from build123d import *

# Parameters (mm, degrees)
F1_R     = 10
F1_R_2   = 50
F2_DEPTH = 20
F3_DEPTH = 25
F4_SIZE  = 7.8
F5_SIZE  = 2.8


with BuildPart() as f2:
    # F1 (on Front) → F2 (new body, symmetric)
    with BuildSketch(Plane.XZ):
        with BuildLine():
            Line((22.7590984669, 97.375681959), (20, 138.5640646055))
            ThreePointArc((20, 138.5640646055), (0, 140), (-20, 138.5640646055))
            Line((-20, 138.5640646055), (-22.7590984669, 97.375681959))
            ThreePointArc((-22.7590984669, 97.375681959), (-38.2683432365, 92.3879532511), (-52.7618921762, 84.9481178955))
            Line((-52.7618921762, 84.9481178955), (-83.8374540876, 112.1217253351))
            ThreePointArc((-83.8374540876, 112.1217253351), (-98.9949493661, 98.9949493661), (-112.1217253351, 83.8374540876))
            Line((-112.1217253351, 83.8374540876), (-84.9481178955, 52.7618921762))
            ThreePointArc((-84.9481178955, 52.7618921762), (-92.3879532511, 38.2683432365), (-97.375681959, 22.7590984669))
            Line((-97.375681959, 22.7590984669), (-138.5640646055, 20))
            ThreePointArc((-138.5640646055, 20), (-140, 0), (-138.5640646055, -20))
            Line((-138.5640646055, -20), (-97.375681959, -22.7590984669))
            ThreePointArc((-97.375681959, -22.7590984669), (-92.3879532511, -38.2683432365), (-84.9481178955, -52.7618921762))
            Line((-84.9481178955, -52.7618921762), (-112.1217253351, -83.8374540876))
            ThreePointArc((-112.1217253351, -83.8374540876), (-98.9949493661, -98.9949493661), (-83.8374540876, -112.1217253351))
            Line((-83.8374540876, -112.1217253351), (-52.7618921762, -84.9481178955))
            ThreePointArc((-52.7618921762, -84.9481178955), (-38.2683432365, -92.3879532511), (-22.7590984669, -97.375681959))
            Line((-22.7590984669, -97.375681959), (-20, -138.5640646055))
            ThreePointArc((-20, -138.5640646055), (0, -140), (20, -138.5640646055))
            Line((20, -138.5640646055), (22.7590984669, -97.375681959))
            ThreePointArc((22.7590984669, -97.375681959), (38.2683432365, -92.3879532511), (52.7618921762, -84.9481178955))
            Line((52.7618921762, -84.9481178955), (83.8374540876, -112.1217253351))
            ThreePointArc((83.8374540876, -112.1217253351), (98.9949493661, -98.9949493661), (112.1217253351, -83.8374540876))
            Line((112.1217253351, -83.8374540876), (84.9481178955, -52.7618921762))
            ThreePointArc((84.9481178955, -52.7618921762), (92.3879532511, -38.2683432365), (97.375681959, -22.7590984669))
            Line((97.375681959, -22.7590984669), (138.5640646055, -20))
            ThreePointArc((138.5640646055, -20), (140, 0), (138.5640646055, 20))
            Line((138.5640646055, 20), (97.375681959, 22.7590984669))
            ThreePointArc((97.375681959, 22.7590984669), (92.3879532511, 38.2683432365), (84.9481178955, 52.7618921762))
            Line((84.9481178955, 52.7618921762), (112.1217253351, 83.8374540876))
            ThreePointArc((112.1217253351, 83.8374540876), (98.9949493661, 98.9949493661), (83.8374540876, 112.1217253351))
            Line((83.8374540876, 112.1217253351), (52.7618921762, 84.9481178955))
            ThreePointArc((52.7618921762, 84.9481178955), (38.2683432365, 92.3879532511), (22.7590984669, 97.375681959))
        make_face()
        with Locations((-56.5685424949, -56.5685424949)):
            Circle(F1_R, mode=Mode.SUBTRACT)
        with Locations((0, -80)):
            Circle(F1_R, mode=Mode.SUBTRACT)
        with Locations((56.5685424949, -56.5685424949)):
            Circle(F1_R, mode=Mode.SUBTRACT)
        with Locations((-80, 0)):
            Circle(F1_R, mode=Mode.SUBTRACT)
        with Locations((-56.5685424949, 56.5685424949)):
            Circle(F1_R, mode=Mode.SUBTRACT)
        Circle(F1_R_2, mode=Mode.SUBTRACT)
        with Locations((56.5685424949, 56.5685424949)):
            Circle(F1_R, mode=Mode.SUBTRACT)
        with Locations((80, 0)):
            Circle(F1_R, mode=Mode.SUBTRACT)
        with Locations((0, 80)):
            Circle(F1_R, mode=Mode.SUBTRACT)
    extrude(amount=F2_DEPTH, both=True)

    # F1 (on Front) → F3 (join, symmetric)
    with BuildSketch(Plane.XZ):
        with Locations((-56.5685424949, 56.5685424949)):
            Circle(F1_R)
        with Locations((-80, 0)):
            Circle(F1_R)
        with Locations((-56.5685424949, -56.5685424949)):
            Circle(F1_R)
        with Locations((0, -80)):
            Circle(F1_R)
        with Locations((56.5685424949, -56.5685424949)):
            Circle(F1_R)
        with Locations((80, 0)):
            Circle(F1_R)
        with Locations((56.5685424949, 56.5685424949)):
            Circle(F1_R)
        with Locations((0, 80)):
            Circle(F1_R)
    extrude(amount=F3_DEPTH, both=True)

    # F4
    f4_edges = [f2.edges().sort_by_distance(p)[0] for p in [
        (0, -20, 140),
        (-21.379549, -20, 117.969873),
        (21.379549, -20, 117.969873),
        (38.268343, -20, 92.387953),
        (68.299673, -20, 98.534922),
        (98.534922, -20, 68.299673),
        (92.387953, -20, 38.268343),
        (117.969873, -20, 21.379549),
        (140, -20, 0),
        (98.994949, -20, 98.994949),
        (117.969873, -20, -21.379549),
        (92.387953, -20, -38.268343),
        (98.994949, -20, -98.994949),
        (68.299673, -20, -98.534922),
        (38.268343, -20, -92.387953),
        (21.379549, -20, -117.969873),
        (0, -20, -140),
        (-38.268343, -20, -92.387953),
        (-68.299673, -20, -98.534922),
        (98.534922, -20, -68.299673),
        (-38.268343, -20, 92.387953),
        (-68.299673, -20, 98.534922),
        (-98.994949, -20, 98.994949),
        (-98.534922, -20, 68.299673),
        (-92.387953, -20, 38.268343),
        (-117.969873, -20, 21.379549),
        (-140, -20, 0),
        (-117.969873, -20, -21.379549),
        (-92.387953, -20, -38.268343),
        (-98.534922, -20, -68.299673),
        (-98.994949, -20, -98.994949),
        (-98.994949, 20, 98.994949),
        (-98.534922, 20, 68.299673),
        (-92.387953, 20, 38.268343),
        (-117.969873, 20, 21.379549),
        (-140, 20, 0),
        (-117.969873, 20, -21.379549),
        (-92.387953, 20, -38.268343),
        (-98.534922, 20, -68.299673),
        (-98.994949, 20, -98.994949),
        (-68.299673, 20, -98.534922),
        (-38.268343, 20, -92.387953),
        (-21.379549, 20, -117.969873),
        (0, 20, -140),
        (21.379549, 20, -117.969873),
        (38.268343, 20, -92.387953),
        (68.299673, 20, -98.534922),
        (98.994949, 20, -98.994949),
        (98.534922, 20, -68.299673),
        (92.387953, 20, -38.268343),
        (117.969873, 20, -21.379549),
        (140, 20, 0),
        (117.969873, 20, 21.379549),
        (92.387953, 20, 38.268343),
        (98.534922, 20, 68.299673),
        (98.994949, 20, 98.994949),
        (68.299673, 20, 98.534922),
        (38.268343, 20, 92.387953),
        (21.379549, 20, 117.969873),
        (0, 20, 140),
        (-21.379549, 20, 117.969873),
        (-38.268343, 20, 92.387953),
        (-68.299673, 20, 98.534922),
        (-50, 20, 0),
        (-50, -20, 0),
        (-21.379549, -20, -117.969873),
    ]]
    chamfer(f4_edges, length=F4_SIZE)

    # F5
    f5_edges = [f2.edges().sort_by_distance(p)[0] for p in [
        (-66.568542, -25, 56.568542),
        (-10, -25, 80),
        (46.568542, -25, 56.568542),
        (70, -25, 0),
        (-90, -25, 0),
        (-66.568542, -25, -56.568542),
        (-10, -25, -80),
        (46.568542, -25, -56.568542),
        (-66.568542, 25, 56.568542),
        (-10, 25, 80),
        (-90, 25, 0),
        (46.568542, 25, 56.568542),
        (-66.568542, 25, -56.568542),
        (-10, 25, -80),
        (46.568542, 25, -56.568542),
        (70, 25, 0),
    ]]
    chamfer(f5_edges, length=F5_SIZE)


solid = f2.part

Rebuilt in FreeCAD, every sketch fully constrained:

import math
import FreeCAD as App
import Part
import Sketcher
Q = App.Units.Quantity


def edges_at(feature, points):
    """Names of the edges that pass closest to the given points."""
    edges = feature.Shape.Edges
    near = lambda p: min(range(len(edges)), key=lambda i: edges[i].distToShape(Part.Vertex(*p))[0])
    return sorted({f"Edge{near(p) + 1}" for p in points})

doc = App.newDocument("Part")
body = doc.addObject("PartDesign::Body", "Body")

sketch1 = doc.addObject("Sketcher::SketchObject", "Sketch")
body.addObject(sketch1)
sketch1.AttachmentSupport = (doc.XZ_Plane, [""])
sketch1.MapMode = "FlatFace"
sketch1.addGeometry(Part.LineSegment(App.Vector(23, 97, 0), App.Vector(20, 139, 0)), False)
sketch1.addGeometry(Part.ArcOfCircle(Part.Circle(App.Vector(0, 0, 0), App.Vector(0, 0, 1), 140), math.radians(81.79), math.radians(98.21)), False)
sketch1.addGeometry(Part.LineSegment(App.Vector(-20, 139, 0), App.Vector(-23, 97, 0)), False)
sketch1.addGeometry(Part.ArcOfCircle(Part.Circle(App.Vector(0, 0, 0), App.Vector(0, 0, 1), 100), math.radians(103.16), math.radians(121.84)), False)
sketch1.addGeometry(Part.LineSegment(App.Vector(-53, 85, 0), App.Vector(-84, 112, 0)), False)
sketch1.addGeometry(Part.ArcOfCircle(Part.Circle(App.Vector(0, 0, 0), App.Vector(0, 0, 1), 140), math.radians(126.79), math.radians(143.21)), False)
sketch1.addGeometry(Part.LineSegment(App.Vector(-112, 84, 0), App.Vector(-85, 53, 0)), False)
sketch1.addGeometry(Part.ArcOfCircle(Part.Circle(App.Vector(0, 0, 0), App.Vector(0, 0, 1), 100), math.radians(148.16), math.radians(166.84)), False)
sketch1.addGeometry(Part.LineSegment(App.Vector(-97, 23, 0), App.Vector(-139, 20, 0)), False)
sketch1.addGeometry(Part.ArcOfCircle(Part.Circle(App.Vector(0, 0, 0), App.Vector(0, 0, 1), 140), math.radians(171.79), math.radians(188.21)), False)
sketch1.addGeometry(Part.LineSegment(App.Vector(-139, -20, 0), App.Vector(-97, -23, 0)), False)
sketch1.addGeometry(Part.ArcOfCircle(Part.Circle(App.Vector(0, 0, 0), App.Vector(0, 0, 1), 100), math.radians(-166.84), math.radians(-148.16)), False)
sketch1.addGeometry(Part.LineSegment(App.Vector(-85, -53, 0), App.Vector(-112, -84, 0)), False)
sketch1.addGeometry(Part.ArcOfCircle(Part.Circle(App.Vector(0, 0, 0), App.Vector(0, 0, 1), 140), math.radians(-143.21), math.radians(-126.79)), False)
sketch1.addGeometry(Part.LineSegment(App.Vector(-84, -112, 0), App.Vector(-53, -85, 0)), False)
sketch1.addGeometry(Part.ArcOfCircle(Part.Circle(App.Vector(0, 0, 0), App.Vector(0, 0, 1), 100), math.radians(-121.84), math.radians(-103.16)), False)
sketch1.addGeometry(Part.LineSegment(App.Vector(-23, -97, 0), App.Vector(-20, -139, 0)), False)
sketch1.addGeometry(Part.ArcOfCircle(Part.Circle(App.Vector(0, 0, 0), App.Vector(0, 0, 1), 140), math.radians(-98.21), math.radians(-81.79)), False)
sketch1.addGeometry(Part.LineSegment(App.Vector(20, -139, 0), App.Vector(23, -97, 0)), False)
sketch1.addGeometry(Part.ArcOfCircle(Part.Circle(App.Vector(0, 0, 0), App.Vector(0, 0, 1), 100), math.radians(-76.84), math.radians(-58.16)), False)
sketch1.addGeometry(Part.LineSegment(App.Vector(53, -85, 0), App.Vector(84, -112, 0)), False)
sketch1.addGeometry(Part.ArcOfCircle(Part.Circle(App.Vector(0, 0, 0), App.Vector(0, 0, 1), 140), math.radians(-53.21), math.radians(-36.79)), False)
sketch1.addGeometry(Part.LineSegment(App.Vector(112, -84, 0), App.Vector(85, -53, 0)), False)
sketch1.addGeometry(Part.ArcOfCircle(Part.Circle(App.Vector(0, 0, 0), App.Vector(0, 0, 1), 100), math.radians(-31.84), math.radians(-13.16)), False)
sketch1.addGeometry(Part.LineSegment(App.Vector(97, -23, 0), App.Vector(139, -20, 0)), False)
sketch1.addGeometry(Part.ArcOfCircle(Part.Circle(App.Vector(0, 0, 0), App.Vector(0, 0, 1), 140), math.radians(-8.21), math.radians(8.21)), False)
sketch1.addGeometry(Part.LineSegment(App.Vector(139, 20, 0), App.Vector(97, 23, 0)), False)
sketch1.addGeometry(Part.ArcOfCircle(Part.Circle(App.Vector(0, 0, 0), App.Vector(0, 0, 1), 100), math.radians(13.16), math.radians(31.84)), False)
sketch1.addGeometry(Part.LineSegment(App.Vector(85, 53, 0), App.Vector(112, 84, 0)), False)
sketch1.addGeometry(Part.ArcOfCircle(Part.Circle(App.Vector(0, 0, 0), App.Vector(0, 0, 1), 140), math.radians(36.79), math.radians(53.21)), False)
sketch1.addGeometry(Part.LineSegment(App.Vector(84, 112, 0), App.Vector(53, 85, 0)), False)
sketch1.addGeometry(Part.ArcOfCircle(Part.Circle(App.Vector(0, 0, 0), App.Vector(0, 0, 1), 100), math.radians(58.16), math.radians(76.84)), False)
sketch1.addGeometry(Part.Circle(App.Vector(-57, -57, 0), App.Vector(0, 0, 1), 10), False)
sketch1.addGeometry(Part.Circle(App.Vector(0, -80, 0), App.Vector(0, 0, 1), 10), False)
sketch1.addGeometry(Part.Circle(App.Vector(57, -57, 0), App.Vector(0, 0, 1), 10), False)
sketch1.addGeometry(Part.Circle(App.Vector(-80, 0, 0), App.Vector(0, 0, 1), 10), False)
sketch1.addGeometry(Part.Circle(App.Vector(-57, 57, 0), App.Vector(0, 0, 1), 10), False)
sketch1.addGeometry(Part.Circle(App.Vector(0, 0, 0), App.Vector(0, 0, 1), 50), False)
sketch1.addGeometry(Part.Circle(App.Vector(80, 0, 0), App.Vector(0, 0, 1), 10), False)
sketch1.addGeometry(Part.Circle(App.Vector(0, 80, 0), App.Vector(0, 0, 1), 10), False)
sketch1.addGeometry(Part.Circle(App.Vector(57, 57, 0), App.Vector(0, 0, 1), 10), False)
sketch1.addConstraint(Sketcher.Constraint("Coincident", 0, 2, 1, 1))
sketch1.addConstraint(Sketcher.Constraint("Coincident", 1, 2, 2, 1))
sketch1.addConstraint(Sketcher.Constraint("Coincident", 2, 2, 3, 1))
sketch1.addConstraint(Sketcher.Constraint("Coincident", 3, 2, 4, 1))
sketch1.addConstraint(Sketcher.Constraint("Coincident", 4, 2, 5, 1))
sketch1.addConstraint(Sketcher.Constraint("Coincident", 5, 2, 6, 1))
sketch1.addConstraint(Sketcher.Constraint("Coincident", 6, 2, 7, 1))
sketch1.addConstraint(Sketcher.Constraint("Coincident", 7, 2, 8, 1))
sketch1.addConstraint(Sketcher.Constraint("Coincident", 8, 2, 9, 1))
sketch1.addConstraint(Sketcher.Constraint("Coincident", 9, 2, 10, 1))
sketch1.addConstraint(Sketcher.Constraint("Coincident", 10, 2, 11, 1))
sketch1.addConstraint(Sketcher.Constraint("Coincident", 11, 2, 12, 1))
sketch1.addConstraint(Sketcher.Constraint("Coincident", 12, 2, 13, 1))
sketch1.addConstraint(Sketcher.Constraint("Coincident", 13, 2, 14, 1))
sketch1.addConstraint(Sketcher.Constraint("Coincident", 14, 2, 15, 1))
sketch1.addConstraint(Sketcher.Constraint("Coincident", 15, 2, 16, 1))
sketch1.addConstraint(Sketcher.Constraint("Coincident", 16, 2, 17, 1))
sketch1.addConstraint(Sketcher.Constraint("Coincident", 17, 2, 18, 1))
sketch1.addConstraint(Sketcher.Constraint("Coincident", 18, 2, 19, 1))
sketch1.addConstraint(Sketcher.Constraint("Coincident", 19, 2, 20, 1))
sketch1.addConstraint(Sketcher.Constraint("Coincident", 20, 2, 21, 1))
sketch1.addConstraint(Sketcher.Constraint("Coincident", 21, 2, 22, 1))
sketch1.addConstraint(Sketcher.Constraint("Coincident", 22, 2, 23, 1))
sketch1.addConstraint(Sketcher.Constraint("Coincident", 23, 2, 24, 1))
sketch1.addConstraint(Sketcher.Constraint("Coincident", 24, 2, 25, 1))
sketch1.addConstraint(Sketcher.Constraint("Coincident", 25, 2, 26, 1))
sketch1.addConstraint(Sketcher.Constraint("Coincident", 26, 2, 27, 1))
sketch1.addConstraint(Sketcher.Constraint("Coincident", 27, 2, 28, 1))
sketch1.addConstraint(Sketcher.Constraint("Coincident", 28, 2, 29, 1))
sketch1.addConstraint(Sketcher.Constraint("Coincident", 29, 2, 30, 1))
sketch1.addConstraint(Sketcher.Constraint("Coincident", 30, 2, 31, 1))
sketch1.addConstraint(Sketcher.Constraint("Coincident", 31, 2, 0, 1))
sketch1.addConstraint(Sketcher.Constraint("Coincident", 1, 3, -1, 1))
sketch1.addConstraint(Sketcher.Constraint("Coincident", 3, 3, -1, 1))
sketch1.addConstraint(Sketcher.Constraint("Coincident", 5, 3, -1, 1))
sketch1.addConstraint(Sketcher.Constraint("Coincident", 7, 3, -1, 1))
sketch1.addConstraint(Sketcher.Constraint("Coincident", 9, 3, -1, 1))
sketch1.addConstraint(Sketcher.Constraint("Coincident", 11, 3, -1, 1))
sketch1.addConstraint(Sketcher.Constraint("Coincident", 13, 3, -1, 1))
sketch1.addConstraint(Sketcher.Constraint("Coincident", 15, 3, -1, 1))
sketch1.addConstraint(Sketcher.Constraint("Coincident", 17, 3, -1, 1))
sketch1.addConstraint(Sketcher.Constraint("Coincident", 19, 3, -1, 1))
sketch1.addConstraint(Sketcher.Constraint("Coincident", 21, 3, -1, 1))
sketch1.addConstraint(Sketcher.Constraint("Coincident", 23, 3, -1, 1))
sketch1.addConstraint(Sketcher.Constraint("Coincident", 25, 3, -1, 1))
sketch1.addConstraint(Sketcher.Constraint("Coincident", 27, 3, -1, 1))
sketch1.addConstraint(Sketcher.Constraint("Coincident", 29, 3, -1, 1))
sketch1.addConstraint(Sketcher.Constraint("Coincident", 31, 3, -1, 1))
sketch1.addConstraint(Sketcher.Constraint("Coincident", 37, 3, -1, 1))
sketch1.addConstraint(Sketcher.Constraint("Equal", 1, 5))
sketch1.addConstraint(Sketcher.Constraint("Equal", 3, 7))
sketch1.addConstraint(Sketcher.Constraint("Equal", 5, 9))
sketch1.addConstraint(Sketcher.Constraint("Equal", 7, 11))
sketch1.addConstraint(Sketcher.Constraint("Equal", 9, 13))
sketch1.addConstraint(Sketcher.Constraint("Equal", 11, 15))
sketch1.addConstraint(Sketcher.Constraint("Equal", 13, 17))
sketch1.addConstraint(Sketcher.Constraint("Equal", 15, 19))
sketch1.addConstraint(Sketcher.Constraint("Equal", 17, 21))
sketch1.addConstraint(Sketcher.Constraint("Equal", 19, 23))
sketch1.addConstraint(Sketcher.Constraint("Equal", 21, 25))
sketch1.addConstraint(Sketcher.Constraint("Equal", 23, 27))
sketch1.addConstraint(Sketcher.Constraint("Equal", 25, 29))
sketch1.addConstraint(Sketcher.Constraint("Equal", 27, 31))
sketch1.addConstraint(Sketcher.Constraint("Equal", 32, 33))
sketch1.addConstraint(Sketcher.Constraint("Equal", 33, 34))
sketch1.addConstraint(Sketcher.Constraint("Equal", 34, 35))
sketch1.addConstraint(Sketcher.Constraint("Equal", 35, 36))
sketch1.addConstraint(Sketcher.Constraint("Equal", 36, 38))
sketch1.addConstraint(Sketcher.Constraint("Equal", 38, 39))
sketch1.addConstraint(Sketcher.Constraint("Equal", 39, 40))
sketch1.addConstraint(Sketcher.Constraint("Symmetric", 34, 3, 36, 3, -1, 1))
sketch1.addConstraint(Sketcher.Constraint("Symmetric", 35, 3, 38, 3, -1, 1))
sketch1.addConstraint(Sketcher.Constraint("Symmetric", 33, 3, 39, 3, -1, 1))
sketch1.addConstraint(Sketcher.Constraint("Symmetric", 32, 3, 40, 3, -1, 1))
sketch1.addConstraint(Sketcher.Constraint("Symmetric", 32, 3, 34, 3, -2))
sketch1.addConstraint(Sketcher.Constraint("PointOnObject", 33, 3, -2))
sketch1.addConstraint(Sketcher.Constraint("PointOnObject", 35, 3, -1))
sketch1.addConstraint(Sketcher.Constraint("Perpendicular", 0, 8))
sketch1.addConstraint(Sketcher.Constraint("Perpendicular", 2, 10))
sketch1.addConstraint(Sketcher.Constraint("Perpendicular", 4, 12))
sketch1.addConstraint(Sketcher.Constraint("Perpendicular", 6, 14))
sketch1.addConstraint(Sketcher.Constraint("Perpendicular", 8, 16))
sketch1.addConstraint(Sketcher.Constraint("Perpendicular", 10, 18))
sketch1.addConstraint(Sketcher.Constraint("Perpendicular", 12, 20))
sketch1.addConstraint(Sketcher.Constraint("Perpendicular", 14, 22))
sketch1.addConstraint(Sketcher.Constraint("Perpendicular", 16, 24))
sketch1.addConstraint(Sketcher.Constraint("Perpendicular", 18, 26))
sketch1.addConstraint(Sketcher.Constraint("Perpendicular", 20, 28))
sketch1.addConstraint(Sketcher.Constraint("Perpendicular", 22, 30))
sketch1.addConstraint(Sketcher.Constraint("Horizontal", 0, 2, 1, 2))
sketch1.addConstraint(Sketcher.Constraint("Horizontal", 16, 2, 17, 2))
sketch1.addConstraint(Sketcher.Constraint("Horizontal", 15, 2, 18, 2))
sketch1.addConstraint(Sketcher.Constraint("Horizontal", 14, 2, 19, 2))
sketch1.addConstraint(Sketcher.Constraint("Horizontal", 13, 2, 20, 2))
sketch1.addConstraint(Sketcher.Constraint("Horizontal", 12, 2, 21, 2))
sketch1.addConstraint(Sketcher.Constraint("Horizontal", 10, 2, 23, 2))
sketch1.addConstraint(Sketcher.Constraint("Horizontal", 8, 2, 25, 2))
sketch1.addConstraint(Sketcher.Constraint("Horizontal", 6, 2, 27, 2))
sketch1.addConstraint(Sketcher.Constraint("Horizontal", 4, 2, 29, 2))
sketch1.addConstraint(Sketcher.Constraint("Vertical", 8, 2, 9, 2))
sketch1.addConstraint(Sketcher.Constraint("Vertical", 6, 2, 11, 2))
sketch1.addConstraint(Sketcher.Constraint("Vertical", 4, 2, 13, 2))
sketch1.addConstraint(Sketcher.Constraint("Vertical", 2, 2, 15, 2))
sketch1.addConstraint(Sketcher.Constraint("Equal", 2, 4))
sketch1.addConstraint(Sketcher.Constraint("Equal", 4, 6))
sketch1.addConstraint(Sketcher.Constraint("Equal", 6, 8))
sketch1.addConstraint(Sketcher.Constraint("Diameter", 32, Q("20 mm")))
sketch1.addConstraint(Sketcher.Constraint("Diameter", 37, Q("100 mm")))
sketch1.addConstraint(Sketcher.Constraint("Radius", 1, Q("140 mm")))
sketch1.addConstraint(Sketcher.Constraint("Radius", 3, Q("100 mm")))
sketch1.addConstraint(Sketcher.Constraint("DistanceY", 33, 3, -1, 1, Q("80 mm")))
sketch1.addConstraint(Sketcher.Constraint("DistanceX", 35, 3, -1, 1, Q("80 mm")))
sketch1.addConstraint(Sketcher.Constraint("DistanceX", -1, 1, 0, 2, Q("20 mm")))
sketch1.addConstraint(Sketcher.Constraint("DistanceX", 2, 2, -1, 1, Q("22.759098 mm")))
sketch1.addConstraint(Sketcher.Constraint("DistanceY", 36, 3, 2, 2, Q("40.807139 mm")))
sketch1.addConstraint(Sketcher.Constraint("DistanceX", 2, 2, 40, 3, Q("79.327641 mm")))
sketch1.addConstraint(Sketcher.Constraint("DistanceX", 36, 3, 3, 2, Q("3.80665 mm")))
pad1 = doc.addObject("PartDesign::Pad", "Pad")
body.addObject(pad1)
pad1.Profile = sketch1
pad1.Length = 40
pad1.Midplane = True

sketch2 = doc.addObject("Sketcher::SketchObject", "Sketch001")
body.addObject(sketch2)
sketch2.AttachmentSupport = (doc.XZ_Plane, [""])
sketch2.MapMode = "FlatFace"
sketch2.addGeometry(Part.Circle(App.Vector(-57, 57, 0), App.Vector(0, 0, 1), 10), False)
sketch2.addGeometry(Part.Circle(App.Vector(-80, 0, 0), App.Vector(0, 0, 1), 10), False)
sketch2.addGeometry(Part.Circle(App.Vector(-57, -57, 0), App.Vector(0, 0, 1), 10), False)
sketch2.addGeometry(Part.Circle(App.Vector(0, -80, 0), App.Vector(0, 0, 1), 10), False)
sketch2.addGeometry(Part.Circle(App.Vector(57, -57, 0), App.Vector(0, 0, 1), 10), False)
sketch2.addGeometry(Part.Circle(App.Vector(80, 0, 0), App.Vector(0, 0, 1), 10), False)
sketch2.addGeometry(Part.Circle(App.Vector(57, 57, 0), App.Vector(0, 0, 1), 10), False)
sketch2.addGeometry(Part.Circle(App.Vector(0, 80, 0), App.Vector(0, 0, 1), 10), False)
sketch2.addConstraint(Sketcher.Constraint("Equal", 0, 1))
sketch2.addConstraint(Sketcher.Constraint("Equal", 1, 2))
sketch2.addConstraint(Sketcher.Constraint("Equal", 2, 3))
sketch2.addConstraint(Sketcher.Constraint("Equal", 3, 4))
sketch2.addConstraint(Sketcher.Constraint("Equal", 4, 5))
sketch2.addConstraint(Sketcher.Constraint("Equal", 5, 6))
sketch2.addConstraint(Sketcher.Constraint("Equal", 6, 7))
sketch2.addConstraint(Sketcher.Constraint("Symmetric", 0, 3, 4, 3, -1, 1))
sketch2.addConstraint(Sketcher.Constraint("Symmetric", 1, 3, 5, 3, -1, 1))
sketch2.addConstraint(Sketcher.Constraint("Symmetric", 2, 3, 6, 3, -1, 1))
sketch2.addConstraint(Sketcher.Constraint("Symmetric", 3, 3, 7, 3, -1, 1))
sketch2.addConstraint(Sketcher.Constraint("Symmetric", 2, 3, 4, 3, -2))
sketch2.addConstraint(Sketcher.Constraint("PointOnObject", 1, 3, -1))
sketch2.addConstraint(Sketcher.Constraint("PointOnObject", 3, 3, -2))
sketch2.addConstraint(Sketcher.Constraint("Diameter", 0, Q("20 mm")))
sketch2.addConstraint(Sketcher.Constraint("DistanceX", 1, 3, -1, 1, Q("80 mm")))
sketch2.addConstraint(Sketcher.Constraint("DistanceY", 3, 3, -1, 1, Q("80 mm")))
sketch2.addConstraint(Sketcher.Constraint("DistanceX", 0, 3, -1, 1, Q("56.568542 mm")))
sketch2.addConstraint(Sketcher.Constraint("DistanceY", -1, 1, 0, 3, Q("56.568542 mm")))
pad2 = doc.addObject("PartDesign::Pad", "Pad001")
body.addObject(pad2)
pad2.Profile = sketch2
pad2.Length = 50
pad2.Midplane = True
doc.recompute()

chamfer = doc.addObject("PartDesign::Chamfer", "Chamfer")
body.addObject(chamfer)
chamfer.Base = (pad2, edges_at(pad2, [
    (0, -20, 140),
    (-21.38, -20, 117.97),
    (21.38, -20, 117.97),
    (38.268, -20, 92.388),
    (68.3, -20, 98.535),
    (98.535, -20, 68.3),
    (92.388, -20, 38.268),
    (117.97, -20, 21.38),
    (140, -20, 0),
    (98.995, -20, 98.995),
    (117.97, -20, -21.38),
    (92.388, -20, -38.268),
    (98.995, -20, -98.995),
    (68.3, -20, -98.535),
    (38.268, -20, -92.388),
    (21.38, -20, -117.97),
    (0, -20, -140),
    (-38.268, -20, -92.388),
    (-68.3, -20, -98.535),
    (98.535, -20, -68.3),
    (-38.268, -20, 92.388),
    (-68.3, -20, 98.535),
    (-98.995, -20, 98.995),
    (-98.535, -20, 68.3),
    (-92.388, -20, 38.268),
    (-117.97, -20, 21.38),
    (-140, -20, 0),
    (-117.97, -20, -21.38),
    (-92.388, -20, -38.268),
    (-98.535, -20, -68.3),
    (-98.995, -20, -98.995),
    (-98.995, 20, 98.995),
    (-98.535, 20, 68.3),
    (-92.388, 20, 38.268),
    (-117.97, 20, 21.38),
    (-140, 20, 0),
    (-117.97, 20, -21.38),
    (-92.388, 20, -38.268),
    (-98.535, 20, -68.3),
    (-98.995, 20, -98.995),
    (-68.3, 20, -98.535),
    (-38.268, 20, -92.388),
    (-21.38, 20, -117.97),
    (0, 20, -140),
    (21.38, 20, -117.97),
    (38.268, 20, -92.388),
    (68.3, 20, -98.535),
    (98.995, 20, -98.995),
    (98.535, 20, -68.3),
    (92.388, 20, -38.268),
    (117.97, 20, -21.38),
    (140, 20, 0),
    (117.97, 20, 21.38),
    (92.388, 20, 38.268),
    (98.535, 20, 68.3),
    (98.995, 20, 98.995),
    (68.3, 20, 98.535),
    (38.268, 20, 92.388),
    (21.38, 20, 117.97),
    (0, 20, 140),
    (-21.38, 20, 117.97),
    (-38.268, 20, 92.388),
    (-68.3, 20, 98.535),
    (-50, 20, 0),
    (-50, -20, 0),
    (-21.38, -20, -117.97),
]))
chamfer.Size = 7.8
doc.recompute()

chamfer2 = doc.addObject("PartDesign::Chamfer", "Chamfer001")
body.addObject(chamfer2)
chamfer2.Base = (chamfer, edges_at(chamfer, [
    (-66.569, -25, 56.569),
    (-10, -25, 80),
    (46.569, -25, 56.569),
    (70, -25, 0),
    (-90, -25, 0),
    (-66.569, -25, -56.569),
    (-10, -25, -80),
    (46.569, -25, -56.569),
    (-66.569, 25, 56.569),
    (-10, 25, 80),
    (-90, 25, 0),
    (46.569, 25, 56.569),
    (-66.569, 25, -56.569),
    (-10, 25, -80),
    (46.569, 25, -56.569),
    (70, 25, 0),
]))
chamfer2.Size = 2.8

doc.recompute()
